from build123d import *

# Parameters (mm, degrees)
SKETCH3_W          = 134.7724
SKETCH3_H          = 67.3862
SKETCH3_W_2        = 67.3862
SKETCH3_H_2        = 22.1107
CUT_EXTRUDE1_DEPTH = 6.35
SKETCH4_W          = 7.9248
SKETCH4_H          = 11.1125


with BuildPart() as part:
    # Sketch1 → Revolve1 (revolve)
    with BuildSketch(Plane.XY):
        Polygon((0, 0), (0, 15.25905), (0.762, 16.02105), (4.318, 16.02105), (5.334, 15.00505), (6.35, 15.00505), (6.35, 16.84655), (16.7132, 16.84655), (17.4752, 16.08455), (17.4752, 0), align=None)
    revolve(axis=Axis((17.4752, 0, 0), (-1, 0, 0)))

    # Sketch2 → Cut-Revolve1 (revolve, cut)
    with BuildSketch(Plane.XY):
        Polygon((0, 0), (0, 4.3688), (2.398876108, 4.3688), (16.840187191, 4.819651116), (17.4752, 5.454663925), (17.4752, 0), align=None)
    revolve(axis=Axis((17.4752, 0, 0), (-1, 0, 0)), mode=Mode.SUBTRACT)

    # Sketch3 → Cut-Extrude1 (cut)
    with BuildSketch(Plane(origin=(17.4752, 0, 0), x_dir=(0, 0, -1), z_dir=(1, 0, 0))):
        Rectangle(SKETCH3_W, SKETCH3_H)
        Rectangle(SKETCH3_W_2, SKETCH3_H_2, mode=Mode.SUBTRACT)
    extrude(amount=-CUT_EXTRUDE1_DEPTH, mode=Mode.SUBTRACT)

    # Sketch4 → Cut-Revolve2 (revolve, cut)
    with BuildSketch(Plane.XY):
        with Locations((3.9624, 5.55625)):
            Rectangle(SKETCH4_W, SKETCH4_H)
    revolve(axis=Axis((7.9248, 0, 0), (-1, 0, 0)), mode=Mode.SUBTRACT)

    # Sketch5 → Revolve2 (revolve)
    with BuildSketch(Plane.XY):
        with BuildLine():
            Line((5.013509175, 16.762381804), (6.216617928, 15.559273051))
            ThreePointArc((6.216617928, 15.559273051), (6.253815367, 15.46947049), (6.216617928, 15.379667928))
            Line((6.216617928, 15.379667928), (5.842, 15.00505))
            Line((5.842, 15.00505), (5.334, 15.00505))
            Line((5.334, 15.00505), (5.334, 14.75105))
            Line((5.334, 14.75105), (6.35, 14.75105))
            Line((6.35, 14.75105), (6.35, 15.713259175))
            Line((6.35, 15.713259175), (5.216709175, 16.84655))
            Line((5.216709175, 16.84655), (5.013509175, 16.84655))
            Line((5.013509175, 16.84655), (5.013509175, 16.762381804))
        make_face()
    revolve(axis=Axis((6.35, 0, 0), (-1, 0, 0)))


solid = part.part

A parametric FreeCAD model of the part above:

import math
import FreeCAD as App
import Part
import Sketcher
from FreeCAD import Vector
Q = App.Units.Quantity

doc = App.newDocument("Part")
body = doc.addObject("PartDesign::Body", "Body")

sketch1 = doc.addObject("Sketcher::SketchObject", "Sketch")
body.addObject(sketch1)
sketch1.AttachmentSupport = (doc.XY_Plane, [""])
sketch1.MapMode = "FlatFace"
sketch1.addGeometry(Part.LineSegment(Vector(0, 15.25905, 0), Vector(0, 0, 0)), False)
sketch1.addGeometry(Part.LineSegment(Vector(0, 0, 0), Vector(17.4752, 0, 0)), False)
sketch1.addGeometry(Part.LineSegment(Vector(17.4752, 0, 0), Vector(17.4752, 16.08455, 0)), False)
sketch1.addGeometry(Part.LineSegment(Vector(17.4752, 16.08455, 0), Vector(16.7132, 16.84655, 0)), False)
sketch1.addGeometry(Part.LineSegment(Vector(16.7132, 16.84655, 0), Vector(6.35, 16.84655, 0)), False)
sketch1.addGeometry(Part.LineSegment(Vector(6.35, 16.84655, 0), Vector(6.35, 15.00505, 0)), False)
sketch1.addGeometry(Part.LineSegment(Vector(6.35, 15.00505, 0), Vector(5.334, 15.00505, 0)), False)
sketch1.addGeometry(Part.LineSegment(Vector(5.334, 15.00505, 0), Vector(4.318, 16.02105, 0)), False)
sketch1.addGeometry(Part.LineSegment(Vector(4.318, 16.02105, 0), Vector(0.762, 16.02105, 0)), False)
sketch1.addGeometry(Part.LineSegment(Vector(0.762, 16.02105, 0), Vector(0, 15.25905, 0)), False)
sketch1.addConstraint(Sketcher.Constraint("Coincident", 0, 2, 1, 1))
sketch1.addConstraint(Sketcher.Constraint("Coincident", 1, 2, 2, 1))
sketch1.addConstraint(Sketcher.Constraint("Coincident", 2, 2, 3, 1))
sketch1.addConstraint(Sketcher.Constraint("Coincident", 3, 2, 4, 1))
sketch1.addConstraint(Sketcher.Constraint("Coincident", 4, 2, 5, 1))
sketch1.addConstraint(Sketcher.Constraint("Coincident", 5, 2, 6, 1))
sketch1.addConstraint(Sketcher.Constraint("Coincident", 6, 2, 7, 1))
sketch1.addConstraint(Sketcher.Constraint("Coincident", 7, 2, 8, 1))
sketch1.addConstraint(Sketcher.Constraint("Coincident", 8, 2, 9, 1))
sketch1.addConstraint(Sketcher.Constraint("Coincident", 9, 2, 0, 1))
sketch1.addConstraint(Sketcher.Constraint("Vertical", 0))
sketch1.addConstraint(Sketcher.Constraint("Horizontal", 1))
sketch1.addConstraint(Sketcher.Constraint("Vertical", 2))
sketch1.addConstraint(Sketcher.Constraint("Horizontal", 4))
sketch1.addConstraint(Sketcher.Constraint("Vertical", 5))
sketch1.addConstraint(Sketcher.Constraint("Horizontal", 6))
sketch1.addConstraint(Sketcher.Constraint("Horizontal", 8))
sketch1.addConstraint(Sketcher.Constraint("Coincident", 0, 2, -1, 1))
sketch1.addConstraint(Sketcher.Constraint("Parallel", 3, 7))
sketch1.addConstraint(Sketcher.Constraint("Perpendicular", 7, 9))
sketch1.addConstraint(Sketcher.Constraint("Equal", 3, 9))
sketch1.addConstraint(Sketcher.Constraint("Angle", 3, Q("135 deg")))
sketch1.addConstraint(Sketcher.Constraint("DistanceX", 6, 2, 6, 1, Q("0.04 in")))
sketch1.addConstraint(Sketcher.Constraint("DistanceX", 8, 2, 8, 1, Q("0.14 in")))
sketch1.addConstraint(Sketcher.Constraint("DistanceX", 1, 1, 1, 2, Q("0.688 in")))
sketch1.addConstraint(Sketcher.Constraint("DistanceX", 4, 2, 4, 1, Q("0.408 in")))
sketch1.addConstraint(Sketcher.Constraint("DistanceX", -1, 1, 4, 2, Q("0.25 in")))
sketch1.addConstraint(Sketcher.Constraint("DistanceY", 5, 2, 5, 1, Q("0.0725 in")))
sketch1.addConstraint(Sketcher.Constraint("DistanceY", 0, 2, 0, 1, 15.25905))
revolution = doc.addObject("PartDesign::Revolution", "Revolution")
body.addObject(revolution)
revolution.Profile = sketch1
revolution.ReferenceAxis = (sketch1, ["H_Axis"])
revolution.Angle = 360

sketch2 = doc.addObject("Sketcher::SketchObject", "Sketch001")
body.addObject(sketch2)
sketch2.AttachmentSupport = (doc.XY_Plane, [""])
sketch2.MapMode = "FlatFace"
sketch2.addGeometry(Part.LineSegment(Vector(0, 4.3688, 0), Vector(0, 0, 0)), False)
sketch2.addGeometry(Part.LineSegment(Vector(0, 0, 0), Vector(17.4752, 0, 0)), False)
sketch2.addGeometry(Part.LineSegment(Vector(17.4752, 0, 0), Vector(17.4752, 5.454664, 0)), False)
sketch2.addGeometry(Part.LineSegment(Vector(17.4752, 5.454664, 0), Vector(16.840187, 4.819651, 0)), False)
sketch2.addGeometry(Part.LineSegment(Vector(16.840187, 4.819651, 0), Vector(2.398876, 4.3688, 0)), False)
sketch2.addGeometry(Part.LineSegment(Vector(2.398876, 4.3688, 0), Vector(0, 4.3688, 0)), False)
sketch2.addConstraint(Sketcher.Constraint("Coincident", 0, 2, 1, 1))
sketch2.addConstraint(Sketcher.Constraint("Coincident", 1, 2, 2, 1))
sketch2.addConstraint(Sketcher.Constraint("Coincident", 2, 2, 3, 1))
sketch2.addConstraint(Sketcher.Constraint("Coincident", 3, 2, 4, 1))
sketch2.addConstraint(Sketcher.Constraint("Coincident", 4, 2, 5, 1))
sketch2.addConstraint(Sketcher.Constraint("Coincident", 5, 2, 0, 1))
sketch2.addConstraint(Sketcher.Constraint("Vertical", 0))
sketch2.addConstraint(Sketcher.Constraint("Horizontal", 1))
sketch2.addConstraint(Sketcher.Constraint("Vertical", 2))
sketch2.addConstraint(Sketcher.Constraint("Horizontal", 5))
sketch2.addConstraint(Sketcher.Constraint("Coincident", 0, 2, -1, 1))
sketch2.addConstraint(Sketcher.Constraint("Angle", 3, Q("-135 deg")))
sketch2.addConstraint(Sketcher.Constraint("DistanceX", 1, 1, 1, 2, Q("0.688 in")))
sketch2.addConstraint(Sketcher.Constraint("DistanceY", 0, 2, 0, 1, Q("0.172 in")))
sketch2.addConstraint(Sketcher.Constraint("DistanceX", 5, 2, 5, 1, 2.398876))
sketch2.addConstraint(Sketcher.Constraint("DistanceY", 2, 1, 2, 2, 5.454664))
sketch2.addConstraint(Sketcher.Constraint("DistanceY", -1, 1, 3, 2, 4.819651))
groove = doc.addObject("PartDesign::Groove", "Groove")
body.addObject(groove)
groove.Profile = sketch2
groove.ReferenceAxis = (sketch2, ["H_Axis"])
groove.Angle = 360

sketch3 = doc.addObject("Sketcher::SketchObject", "Sketch002")
body.addObject(sketch3)
sketch3.AttachmentSupport = (doc.YZ_Plane, [""])
sketch3.MapMode = "FlatFace"
sketch3.AttachmentOffset = App.Placement(Vector(0, 0, 0.688 * 25.4), App.Rotation())
sketch3.addGeometry(Part.LineSegment(Vector(33.6931, 67.3862, 0), Vector(-33.6931, 67.3862, 0)), False)
sketch3.addGeometry(Part.LineSegment(Vector(-33.6931, 67.3862, 0), Vector(-33.6931, -67.3862, 0)), False)
sketch3.addGeometry(Part.LineSegment(Vector(-33.6931, -67.3862, 0), Vector(33.6931, -67.3862, 0)), False)
sketch3.addGeometry(Part.LineSegment(Vector(33.6931, -67.3862, 0), Vector(33.6931, 67.3862, 0)), False)
sketch3.addGeometry(Part.LineSegment(Vector(-11.05535, -33.6931, 0), Vector(-11.05535, 33.6931, 0)), False)
sketch3.addGeometry(Part.LineSegment(Vector(-11.05535, 33.6931, 0), Vector(11.05535, 33.6931, 0)), False)
sketch3.addGeometry(Part.LineSegment(Vector(11.05535, 33.6931, 0), Vector(11.05535, -33.6931, 0)), False)
sketch3.addGeometry(Part.LineSegment(Vector(11.05535, -33.6931, 0), Vector(-11.05535, -33.6931, 0)), False)
sketch3.addConstraint(Sketcher.Constraint("Coincident", 0, 2, 1, 1))
sketch3.addConstraint(Sketcher.Constraint("Coincident", 1, 2, 2, 1))
sketch3.addConstraint(Sketcher.Constraint("Coincident", 2, 2, 3, 1))
sketch3.addConstraint(Sketcher.Constraint("Coincident", 3, 2, 0, 1))
sketch3.addConstraint(Sketcher.Constraint("Coincident", 4, 2, 5, 1))
sketch3.addConstraint(Sketcher.Constraint("Coincident", 5, 2, 6, 1))
sketch3.addConstraint(Sketcher.Constraint("Coincident", 6, 2, 7, 1))
sketch3.addConstraint(Sketcher.Constraint("Coincident", 7, 2, 4, 1))
sketch3.addConstraint(Sketcher.Constraint("Horizontal", 0))
sketch3.addConstraint(Sketcher.Constraint("Vertical", 1))
sketch3.addConstraint(Sketcher.Constraint("Horizontal", 2))
sketch3.addConstraint(Sketcher.Constraint("Vertical", 3))
sketch3.addConstraint(Sketcher.Constraint("Vertical", 4))
sketch3.addConstraint(Sketcher.Constraint("Horizontal", 5))
sketch3.addConstraint(Sketcher.Constraint("Vertical", 6))
sketch3.addConstraint(Sketcher.Constraint("Horizontal", 7))
sketch3.addConstraint(Sketcher.Constraint("Symmetric", 0, 2, 2, 2, -1, 1))
sketch3.addConstraint(Sketcher.Constraint("Symmetric", 4, 2, 6, 2, -1, 1))
sketch3.addConstraint(Sketcher.Constraint("Equal", 2, 4))
sketch3.addConstraint(Sketcher.Constraint("DistanceX", 0, 2, 0, 1, Q("2.653 in")))
sketch3.addConstraint(Sketcher.Constraint("DistanceY", 1, 2, 1, 1, Q("5.306 in")))
sketch3.addConstraint(Sketcher.Constraint("DistanceX", 5, 1, 5, 2, Q("0.8705 in")))
pocket1 = doc.addObject("PartDesign::Pocket", "Pocket")
body.addObject(pocket1)
pocket1.Profile = sketch3
pocket1.Length = Q("0.25 in")

sketch4 = doc.addObject("Sketcher::SketchObject", "Sketch003")
body.addObject(sketch4)
sketch4.AttachmentSupport = (doc.XY_Plane, [""])
sketch4.MapMode = "FlatFace"
sketch4.addGeometry(Part.LineSegment(Vector(0, 11.1125, 0), Vector(0, 0, 0)), False)
sketch4.addGeometry(Part.LineSegment(Vector(0, 0, 0), Vector(7.9248, 0, 0)), False)
sketch4.addGeometry(Part.LineSegment(Vector(7.9248, 0, 0), Vector(7.9248, 11.1125, 0)), False)
sketch4.addGeometry(Part.LineSegment(Vector(7.9248, 11.1125, 0), Vector(0, 11.1125, 0)), False)
sketch4.addConstraint(Sketcher.Constraint("Coincident", 0, 2, 1, 1))
sketch4.addConstraint(Sketcher.Constraint("Coincident", 1, 2, 2, 1))
sketch4.addConstraint(Sketcher.Constraint("Coincident", 2, 2, 3, 1))
sketch4.addConstraint(Sketcher.Constraint("Coincident", 3, 2, 0, 1))
sketch4.addConstraint(Sketcher.Constraint("Vertical", 0))
sketch4.addConstraint(Sketcher.Constraint("Horizontal", 1))
sketch4.addConstraint(Sketcher.Constraint("Vertical", 2))
sketch4.addConstraint(Sketcher.Constraint("Horizontal", 3))
sketch4.addConstraint(Sketcher.Constraint("Coincident", 0, 2, -1, 1))
sketch4.addConstraint(Sketcher.Constraint("DistanceX", 1, 1, 1, 2, Q("0.312 in")))
sketch4.addConstraint(Sketcher.Constraint("DistanceY", 0, 2, 0, 1, Q("0.4375 in")))
groove2 = doc.addObject("PartDesign::Groove", "Groove001")
body.addObject(groove2)
groove2.Profile = sketch4
groove2.ReferenceAxis = (sketch4, ["H_Axis"])
groove2.Angle = 360

sketch5 = doc.addObject("Sketcher::SketchObject", "Sketch004")
body.addObject(sketch5)
sketch5.AttachmentSupport = (doc.XY_Plane, [""])
sketch5.MapMode = "FlatFace"
sketch5.addGeometry(Part.LineSegment(Vector(5.013509, 16.762382, 0), Vector(6.216618, 15.559273, 0)), False)
sketch5.addGeometry(Part.ArcOfCircle(Part.Circle(Vector(6.126815, 15.46947, 0), Vector(0, 0, 1), 0.127), math.radians(-45), math.radians(45)), False)
sketch5.addGeometry(Part.LineSegment(Vector(6.216618, 15.379668, 0), Vector(5.842, 15.00505, 0)), False)
sketch5.addGeometry(Part.LineSegment(Vector(5.842, 15.00505, 0), Vector(5.334, 15.00505, 0)), False)
sketch5.addGeometry(Part.LineSegment(Vector(5.334, 15.00505, 0), Vector(5.334, 14.75105, 0)), False)
sketch5.addGeometry(Part.LineSegment(Vector(5.334, 14.75105, 0), Vector(6.35, 14.75105, 0)), False)
sketch5.addGeometry(Part.LineSegment(Vector(6.35, 14.75105, 0), Vector(6.35, 15.713259, 0)), False)
sketch5.addGeometry(Part.LineSegment(Vector(6.35, 15.713259, 0), Vector(5.216709, 16.84655, 0)), False)
sketch5.addGeometry(Part.LineSegment(Vector(5.216709, 16.84655, 0), Vector(5.013509, 16.84655, 0)), False)
sketch5.addGeometry(Part.LineSegment(Vector(5.013509, 16.84655, 0), Vector(5.013509, 16.762382, 0)), False)
sketch5.addConstraint(Sketcher.Constraint("Tangent", 0, 2, 1, 2))
sketch5.addConstraint(Sketcher.Constraint("Tangent", 1, 1, 2, 1))
sketch5.addConstraint(Sketcher.Constraint("Coincident", 2, 2, 3, 1))
sketch5.addConstraint(Sketcher.Constraint("Coincident", 3, 2, 4, 1))
sketch5.addConstraint(Sketcher.Constraint("Coincident", 4, 2, 5, 1))
sketch5.addConstraint(Sketcher.Constraint("Coincident", 5, 2, 6, 1))
sketch5.addConstraint(Sketcher.Constraint("Coincident", 6, 2, 7, 1))
sketch5.addConstraint(Sketcher.Constraint("Coincident", 7, 2, 8, 1))
sketch5.addConstraint(Sketcher.Constraint("Coincident", 8, 2, 9, 1))
sketch5.addConstraint(Sketcher.Constraint("Coincident", 9, 2, 0, 1))
sketch5.addConstraint(Sketcher.Constraint("Horizontal", 3))
sketch5.addConstraint(Sketcher.Constraint("Vertical", 4))
sketch5.addConstraint(Sketcher.Constraint("Horizontal", 5))
sketch5.addConstraint(Sketcher.Constraint("Vertical", 6))
sketch5.addConstraint(Sketcher.Constraint("Horizontal", 8))
sketch5.addConstraint(Sketcher.Constraint("Vertical", 9))
sketch5.addConstraint(Sketcher.Constraint("Perpendicular", 0, 2))
sketch5.addConstraint(Sketcher.Constraint("Perpendicular", 2, 7))
sketch5.addConstraint(Sketcher.Constraint("Vertical", 0, 2, 1, 1))
sketch5.addConstraint(Sketcher.Constraint("Radius", 1, Q("0.005 in")))
sketch5.addConstraint(Sketcher.Constraint("DistanceX", 3, 2, 3, 1, Q("0.02 in")))
sketch5.addConstraint(Sketcher.Constraint("DistanceX", 5, 1, 5, 2, Q("0.04 in")))
sketch5.addConstraint(Sketcher.Constraint("DistanceY", 4, 2, 4, 1, Q("0.01 in")))
sketch5.addConstraint(Sketcher.Constraint("DistanceX", 8, 2, 8, 1, Q("0.008 in")))
sketch5.addConstraint(Sketcher.Constraint("DistanceX", -1, 1, 2, 2, Q("0.23 in")))
sketch5.addConstraint(Sketcher.Constraint("DistanceY", 3, 2, 7, 2, Q("0.0725 in")))
sketch5.addConstraint(Sketcher.Constraint("DistanceY", 6, 1, 6, 2, 0.962209))
sketch5.addConstraint(Sketcher.Constraint("DistanceY", 9, 2, 9, 1, 0.084168))
sketch5.addConstraint(Sketcher.Constraint("DistanceY", -1, 1, 1, 3, 15.46947))
revolution2 = doc.addObject("PartDesign::Revolution", "Revolution001")
body.addObject(revolution2)
revolution2.Profile = sketch5
revolution2.ReferenceAxis = (sketch5, ["H_Axis"])
revolution2.Angle = 360

doc.recompute()
